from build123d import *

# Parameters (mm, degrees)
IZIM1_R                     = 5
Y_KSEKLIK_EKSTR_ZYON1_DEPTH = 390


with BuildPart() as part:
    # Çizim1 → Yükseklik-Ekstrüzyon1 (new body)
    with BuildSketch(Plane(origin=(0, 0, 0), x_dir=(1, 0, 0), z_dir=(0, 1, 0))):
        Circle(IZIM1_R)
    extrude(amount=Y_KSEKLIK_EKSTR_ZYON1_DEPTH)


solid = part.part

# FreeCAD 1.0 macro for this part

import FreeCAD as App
import Part
import Sketcher

V = App.Vector

doc = App.newDocument("Part")
body = doc.addObject("PartDesign::Body", "Body")

sketch1 = body.newObject("Sketcher::SketchObject", "Sketch")
sketch1.AttachmentSupport = (doc.getObject("XZ_Plane"), [""])
sketch1.MapMode = "FlatFace"
sketch1.addGeometry(Part.Circle(V(0, 0, 0), V(0, 0, 1), 5), False)
sketch1.addConstraint([
    Sketcher.Constraint("Coincident", 0, 3, -1, 1),
    Sketcher.Constraint("Diameter", 0, 10.0),
])
pad1 = body.newObject("PartDesign::Pad", "Pad")
pad1.Profile = sketch1
pad1.Length = 390
pad1.Reversed = True

doc.recompute()
